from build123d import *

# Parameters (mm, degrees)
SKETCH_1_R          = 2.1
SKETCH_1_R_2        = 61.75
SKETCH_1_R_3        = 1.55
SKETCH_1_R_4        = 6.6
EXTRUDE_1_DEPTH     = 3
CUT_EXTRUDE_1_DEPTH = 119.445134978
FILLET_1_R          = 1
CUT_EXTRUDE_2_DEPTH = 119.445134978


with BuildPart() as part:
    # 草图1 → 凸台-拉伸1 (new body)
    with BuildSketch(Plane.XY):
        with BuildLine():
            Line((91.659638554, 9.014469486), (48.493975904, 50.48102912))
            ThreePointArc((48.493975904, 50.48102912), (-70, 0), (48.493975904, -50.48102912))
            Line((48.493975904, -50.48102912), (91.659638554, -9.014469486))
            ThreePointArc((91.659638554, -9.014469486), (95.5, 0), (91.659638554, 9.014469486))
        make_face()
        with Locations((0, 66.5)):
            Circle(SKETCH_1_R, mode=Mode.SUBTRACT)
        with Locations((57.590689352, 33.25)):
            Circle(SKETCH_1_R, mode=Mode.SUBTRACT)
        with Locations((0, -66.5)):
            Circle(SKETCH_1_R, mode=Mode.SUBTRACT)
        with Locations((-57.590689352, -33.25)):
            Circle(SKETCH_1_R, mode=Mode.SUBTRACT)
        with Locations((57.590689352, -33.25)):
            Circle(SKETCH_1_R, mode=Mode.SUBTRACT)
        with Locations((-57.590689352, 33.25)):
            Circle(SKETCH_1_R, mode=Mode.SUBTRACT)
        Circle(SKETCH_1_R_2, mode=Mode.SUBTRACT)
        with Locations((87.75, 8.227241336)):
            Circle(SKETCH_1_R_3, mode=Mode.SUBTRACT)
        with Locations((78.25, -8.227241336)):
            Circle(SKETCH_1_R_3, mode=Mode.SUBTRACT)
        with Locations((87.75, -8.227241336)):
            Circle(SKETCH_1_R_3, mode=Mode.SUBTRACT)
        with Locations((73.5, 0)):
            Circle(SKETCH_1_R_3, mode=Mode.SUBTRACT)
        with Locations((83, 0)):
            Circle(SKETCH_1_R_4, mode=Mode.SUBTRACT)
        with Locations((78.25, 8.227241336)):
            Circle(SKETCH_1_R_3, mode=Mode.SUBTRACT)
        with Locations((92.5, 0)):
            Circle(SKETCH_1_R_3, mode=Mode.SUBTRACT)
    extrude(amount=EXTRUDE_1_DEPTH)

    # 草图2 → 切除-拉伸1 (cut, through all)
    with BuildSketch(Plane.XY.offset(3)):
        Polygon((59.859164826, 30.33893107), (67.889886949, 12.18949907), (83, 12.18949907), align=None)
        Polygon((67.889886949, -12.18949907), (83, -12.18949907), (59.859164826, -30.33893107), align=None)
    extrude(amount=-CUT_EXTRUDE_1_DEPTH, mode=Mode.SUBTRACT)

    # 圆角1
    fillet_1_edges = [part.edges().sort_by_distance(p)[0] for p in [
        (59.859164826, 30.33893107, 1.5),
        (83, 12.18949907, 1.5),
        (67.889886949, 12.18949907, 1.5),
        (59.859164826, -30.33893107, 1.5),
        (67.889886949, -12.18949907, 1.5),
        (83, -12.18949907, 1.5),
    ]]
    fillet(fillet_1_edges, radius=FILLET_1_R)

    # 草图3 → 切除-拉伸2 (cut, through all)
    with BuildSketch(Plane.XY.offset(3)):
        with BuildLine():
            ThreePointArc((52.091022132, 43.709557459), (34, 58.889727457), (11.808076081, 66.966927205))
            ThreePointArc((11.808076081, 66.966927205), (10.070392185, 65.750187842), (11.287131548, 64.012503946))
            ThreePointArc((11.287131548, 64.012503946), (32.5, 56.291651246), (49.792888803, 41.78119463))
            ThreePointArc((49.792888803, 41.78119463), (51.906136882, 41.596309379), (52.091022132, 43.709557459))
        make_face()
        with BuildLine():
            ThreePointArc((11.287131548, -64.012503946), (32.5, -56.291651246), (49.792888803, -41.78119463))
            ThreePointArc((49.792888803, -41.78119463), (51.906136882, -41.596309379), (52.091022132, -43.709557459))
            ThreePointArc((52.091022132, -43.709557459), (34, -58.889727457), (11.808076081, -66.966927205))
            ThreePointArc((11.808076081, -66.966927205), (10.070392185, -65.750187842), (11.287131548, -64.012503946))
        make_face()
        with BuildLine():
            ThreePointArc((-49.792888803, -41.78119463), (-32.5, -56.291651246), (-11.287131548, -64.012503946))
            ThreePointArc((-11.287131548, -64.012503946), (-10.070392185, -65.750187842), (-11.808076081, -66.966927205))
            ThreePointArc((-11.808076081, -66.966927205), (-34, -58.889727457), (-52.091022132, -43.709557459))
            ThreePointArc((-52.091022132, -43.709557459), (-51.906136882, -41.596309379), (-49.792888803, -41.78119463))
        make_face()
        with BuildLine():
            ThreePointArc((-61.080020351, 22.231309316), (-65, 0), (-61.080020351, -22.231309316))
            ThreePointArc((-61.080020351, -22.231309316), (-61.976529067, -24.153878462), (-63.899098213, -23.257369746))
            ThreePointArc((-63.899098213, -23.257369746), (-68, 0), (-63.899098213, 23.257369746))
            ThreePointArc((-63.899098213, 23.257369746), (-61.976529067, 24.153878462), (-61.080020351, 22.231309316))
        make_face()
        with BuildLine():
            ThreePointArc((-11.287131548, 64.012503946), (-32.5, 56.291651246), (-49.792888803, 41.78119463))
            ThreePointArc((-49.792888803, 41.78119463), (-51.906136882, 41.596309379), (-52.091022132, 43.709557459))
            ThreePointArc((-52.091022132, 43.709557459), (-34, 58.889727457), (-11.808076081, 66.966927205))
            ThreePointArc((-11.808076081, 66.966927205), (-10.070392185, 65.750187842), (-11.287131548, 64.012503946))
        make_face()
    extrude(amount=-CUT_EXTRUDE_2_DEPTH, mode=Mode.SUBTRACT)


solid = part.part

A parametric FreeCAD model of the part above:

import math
import FreeCAD as App
import Part
import Sketcher
from FreeCAD import Vector
Q = App.Units.Quantity


def edges_at(feature, points):
    """Names of the edges that pass closest to the given points."""
    edges = feature.Shape.Edges
    near = lambda p: min(range(len(edges)), key=lambda i: edges[i].distToShape(Part.Vertex(*p))[0])
    return sorted({f"Edge{near(p) + 1}" for p in points})


def add_polygon(sketch, points):
    """Adds a closed chain of lines whose ends are joined by coincident constraints."""
    first, n = sketch.GeometryCount, len(points)
    for a, b in zip(points, points[1:] + points[:1]):
        sketch.addGeometry(Part.LineSegment(App.Vector(*a, 0), App.Vector(*b, 0)), False)
    for i in range(n):
        sketch.addConstraint(Sketcher.Constraint("Coincident", first + i, 2, first + (i + 1) % n, 1))

doc = App.newDocument("Part")
body = doc.addObject("PartDesign::Body", "Body")

# Sketch on XY plane
sketch1 = doc.addObject("Sketcher::SketchObject", "Sketch")
body.addObject(sketch1)
sketch1.AttachmentSupport = (doc.XY_Plane, [""])
sketch1.MapMode = "FlatFace"
sketch1.addGeometry(Part.LineSegment(Vector(91.659639, 9.014469, 0), Vector(48.493976, 50.481029, 0)), False)
sketch1.addGeometry(Part.ArcOfCircle(Part.Circle(Vector(0, 0, 0), Vector(0, 0, 1), 70), math.radians(46.150134), math.radians(313.849866)), False)
sketch1.addGeometry(Part.LineSegment(Vector(48.493976, -50.481029, 0), Vector(91.659639, -9.014469, 0)), False)
sketch1.addGeometry(Part.ArcOfCircle(Part.Circle(Vector(83, 0, 0), Vector(0, 0, 1), 12.5), math.radians(-46.150134), math.radians(46.150134)), False)
sketch1.addGeometry(Part.Circle(Vector(0, -66.5, 0), Vector(0, 0, 1), 2.1), False)
sketch1.addGeometry(Part.Circle(Vector(-57.590689, -33.25, 0), Vector(0, 0, 1), 2.1), False)
sketch1.addGeometry(Part.Circle(Vector(57.590689, -33.25, 0), Vector(0, 0, 1), 2.1), False)
sketch1.addGeometry(Part.Circle(Vector(78.25, -8.227241, 0), Vector(0, 0, 1), 1.55), False)
sketch1.addGeometry(Part.Circle(Vector(87.75, -8.227241, 0), Vector(0, 0, 1), 1.55), False)
sketch1.addGeometry(Part.Circle(Vector(-57.590689, 33.25, 0), Vector(0, 0, 1), 2.1), False)
sketch1.addGeometry(Part.Circle(Vector(0, 0, 0), Vector(0, 0, 1), 61.75), False)
sketch1.addGeometry(Part.Circle(Vector(0, 66.5, 0), Vector(0, 0, 1), 2.1), False)
sketch1.addGeometry(Part.Circle(Vector(73.5, 0, 0), Vector(0, 0, 1), 1.55), False)
sketch1.addGeometry(Part.Circle(Vector(83, 0, 0), Vector(0, 0, 1), 6.6), False)
sketch1.addGeometry(Part.Circle(Vector(78.25, 8.227241, 0), Vector(0, 0, 1), 1.55), False)
sketch1.addGeometry(Part.Circle(Vector(92.5, 0, 0), Vector(0, 0, 1), 1.55), False)
sketch1.addGeometry(Part.Circle(Vector(87.75, 8.227241, 0), Vector(0, 0, 1), 1.55), False)
sketch1.addGeometry(Part.Circle(Vector(57.590689, 33.25, 0), Vector(0, 0, 1), 2.1), False)
sketch1.addConstraint(Sketcher.Constraint("Tangent", 0, 2, 1, 1))
sketch1.addConstraint(Sketcher.Constraint("Tangent", 1, 2, 2, 1))
sketch1.addConstraint(Sketcher.Constraint("Tangent", 2, 2, 3, 1))
sketch1.addConstraint(Sketcher.Constraint("Tangent", 3, 2, 0, 1))
sketch1.addConstraint(Sketcher.Constraint("Coincident", 1, 3, -1, 1))
sketch1.addConstraint(Sketcher.Constraint("Coincident", 10, 3, -1, 1))
sketch1.addConstraint(Sketcher.Constraint("Coincident", 13, 3, 3, 3))
sketch1.addConstraint(Sketcher.Constraint("Equal", 4, 5))
sketch1.addConstraint(Sketcher.Constraint("Equal", 5, 6))
sketch1.addConstraint(Sketcher.Constraint("Equal", 7, 8))
sketch1.addConstraint(Sketcher.Constraint("Equal", 6, 9))
sketch1.addConstraint(Sketcher.Constraint("Equal", 9, 11))
sketch1.addConstraint(Sketcher.Constraint("Equal", 8, 12))
sketch1.addConstraint(Sketcher.Constraint("Equal", 12, 14))
sketch1.addConstraint(Sketcher.Constraint("Equal", 14, 15))
sketch1.addConstraint(Sketcher.Constraint("Equal", 15, 16))
sketch1.addConstraint(Sketcher.Constraint("Equal", 11, 17))
sketch1.addConstraint(Sketcher.Constraint("Symmetric", 6, 3, 9, 3, -1, 1))
sketch1.addConstraint(Sketcher.Constraint("Symmetric", 4, 3, 11, 3, -1, 1))
sketch1.addConstraint(Sketcher.Constraint("Symmetric", 5, 3, 17, 3, -1, 1))
sketch1.addConstraint(Sketcher.Constraint("Symmetric", 5, 3, 6, 3, -2))
sketch1.addConstraint(Sketcher.Constraint("Symmetric", 7, 3, 14, 3, -1))
sketch1.addConstraint(Sketcher.Constraint("Symmetric", 8, 3, 16, 3, -1))
sketch1.addConstraint(Sketcher.Constraint("PointOnObject", 3, 3, -1))
sketch1.addConstraint(Sketcher.Constraint("PointOnObject", 4, 3, -2))
sketch1.addConstraint(Sketcher.Constraint("PointOnObject", 12, 3, -1))
sketch1.addConstraint(Sketcher.Constraint("PointOnObject", 15, 3, -1))
sketch1.addConstraint(Sketcher.Constraint("Horizontal", 7, 3, 8, 3))
sketch1.addConstraint(Sketcher.Constraint("Radius", 1, Q("70 mm")))
sketch1.addConstraint(Sketcher.Constraint("Diameter", 4, Q("4.2 mm")))
sketch1.addConstraint(Sketcher.Constraint("Diameter", 7, Q("3.1 mm")))
sketch1.addConstraint(Sketcher.Constraint("Diameter", 10, Q("123.5 mm")))
sketch1.addConstraint(Sketcher.Constraint("Diameter", 13, Q("13.2 mm")))
sketch1.addConstraint(Sketcher.Constraint("Radius", 3, Q("12.5 mm")))
sketch1.addConstraint(Sketcher.Constraint("DistanceX", -1, 1, 3, 3, Q("83 mm")))
sketch1.addConstraint(Sketcher.Constraint("DistanceY", 4, 3, -1, 1, Q("66.5 mm")))
sketch1.addConstraint(Sketcher.Constraint("DistanceX", -1, 1, 12, 3, Q("73.5 mm")))
sketch1.addConstraint(Sketcher.Constraint("DistanceX", -1, 1, 15, 3, Q("92.5 mm")))
sketch1.addConstraint(Sketcher.Constraint("DistanceX", 7, 3, 8, 3, Q("9.5 mm")))
sketch1.addConstraint(Sketcher.Constraint("DistanceY", 5, 3, 9, 3, Q("66.5 mm")))
sketch1.addConstraint(Sketcher.Constraint("DistanceX", -1, 1, 7, 3, Q("78.25 mm")))
sketch1.addConstraint(Sketcher.Constraint("DistanceX", 5, 3, -1, 1, Q("57.590689 mm")))
sketch1.addConstraint(Sketcher.Constraint("DistanceY", 7, 3, -1, 1, Q("8.227241 mm")))
pad1 = doc.addObject("PartDesign::Pad", "Pad")
body.addObject(pad1)
pad1.Profile = sketch1
pad1.Length = 3

# Sketch on XY plane
sketch2 = doc.addObject("Sketcher::SketchObject", "Sketch001")
body.addObject(sketch2)
sketch2.AttachmentSupport = (doc.XY_Plane, [""])
sketch2.MapMode = "FlatFace"
sketch2.AttachmentOffset = App.Placement(Vector(0, 0, 3), App.Rotation())
add_polygon(sketch2, [(59.859165, 30.338931), (67.889887, 12.189499), (83, 12.189499)])  # lines 0-2
add_polygon(sketch2, [(83, -12.189499), (67.889887, -12.189499), (59.859165, -30.338931)])  # lines 3-5
sketch2.addConstraint(Sketcher.Constraint("Horizontal", 1))
sketch2.addConstraint(Sketcher.Constraint("Horizontal", 3))
sketch2.addConstraint(Sketcher.Constraint("Symmetric", 0, 2, 3, 2, -1))
sketch2.addConstraint(Sketcher.Constraint("Symmetric", 2, 2, 4, 2, -1))
sketch2.addConstraint(Sketcher.Constraint("Vertical", 1, 2, 5, 2))
sketch2.addConstraint(Sketcher.Constraint("DistanceX", -1, 1, 1, 2, Q("83 mm")))
sketch2.addConstraint(Sketcher.Constraint("DistanceY", 3, 2, 0, 2, Q("24.378998 mm")))
sketch2.addConstraint(Sketcher.Constraint("DistanceX", 1, 1, 1, 2, Q("15.110113 mm")))
sketch2.addConstraint(Sketcher.Constraint("DistanceY", -1, 1, 2, 2, Q("30.338931 mm")))
sketch2.addConstraint(Sketcher.Constraint("Distance", 0, Q("19.846773 mm")))
pocket1 = doc.addObject("PartDesign::Pocket", "Pocket")
body.addObject(pocket1)
pocket1.Profile = sketch2
pocket1.Type = "ThroughAll"
doc.recompute()

fillet = doc.addObject("PartDesign::Fillet", "Fillet")
body.addObject(fillet)
fillet.Base = (pocket1, edges_at(pocket1, [
    (59.859, 30.339, 1.5),
    (83, 12.189, 1.5),
    (67.89, 12.189, 1.5),
    (59.859, -30.339, 1.5),
    (67.89, -12.189, 1.5),
    (83, -12.189, 1.5),
]))
fillet.Radius = 1

# Sketch on XY plane
sketch3 = doc.addObject("Sketcher::SketchObject", "Sketch002")
body.addObject(sketch3)
sketch3.AttachmentSupport = (doc.XY_Plane, [""])
sketch3.MapMode = "FlatFace"
sketch3.AttachmentOffset = App.Placement(Vector(0, 0, 3), App.Rotation())
sketch3.addGeometry(Part.ArcOfCircle(Part.Circle(Vector(0, 0, 0), Vector(0, 0, 1), 68), math.radians(40), math.radians(80)), False)
sketch3.addGeometry(Part.ArcOfCircle(Part.Circle(Vector(11.547604, 65.489716, 0), Vector(0, 0, 1), 1.5), math.radians(80), math.radians(260)), False)
sketch3.addGeometry(Part.ArcOfCircle(Part.Circle(Vector(0, 0, 0), Vector(0, 0, 1), 65), math.radians(40), math.radians(80)), False)
sketch3.addGeometry(Part.ArcOfCircle(Part.Circle(Vector(50.941955, 42.745376, 0), Vector(0, 0, 1), 1.5), math.radians(-140), math.radians(40)), False)
sketch3.addGeometry(Part.ArcOfCircle(Part.Circle(Vector(0, 0, 0), Vector(0, 0, 1), 65), math.radians(-80), math.radians(-40)), False)
sketch3.addGeometry(Part.ArcOfCircle(Part.Circle(Vector(11.547604, -65.489716, 0), Vector(0, 0, 1), 1.5), math.radians(100), math.radians(280)), False)
sketch3.addGeometry(Part.ArcOfCircle(Part.Circle(Vector(0, 0, 0), Vector(0, 0, 1), 68), math.radians(-80), math.radians(-40)), False)
sketch3.addGeometry(Part.ArcOfCircle(Part.Circle(Vector(50.941955, -42.745376, 0), Vector(0, 0, 1), 1.5), math.radians(-40), math.radians(140)), False)
sketch3.addGeometry(Part.ArcOfCircle(Part.Circle(Vector(0, 0, 0), Vector(0, 0, 1), 65), math.radians(-140), math.radians(-100)), False)
sketch3.addGeometry(Part.ArcOfCircle(Part.Circle(Vector(-50.941955, -42.745376, 0), Vector(0, 0, 1), 1.5), math.radians(40), math.radians(220)), False)
sketch3.addGeometry(Part.ArcOfCircle(Part.Circle(Vector(0, 0, 0), Vector(0, 0, 1), 68), math.radians(-140), math.radians(-100)), False)
sketch3.addGeometry(Part.ArcOfCircle(Part.Circle(Vector(-11.547604, -65.489716, 0), Vector(0, 0, 1), 1.5), math.radians(-100), math.radians(80)), False)
sketch3.addGeometry(Part.ArcOfCircle(Part.Circle(Vector(0, 0, 0), Vector(0, 0, 1), 65), math.radians(160), math.radians(200)), False)
sketch3.addGeometry(Part.ArcOfCircle(Part.Circle(Vector(-62.489559, 22.74434, 0), Vector(0, 0, 1), 1.5), math.radians(-20), math.radians(160)), False)
sketch3.addGeometry(Part.ArcOfCircle(Part.Circle(Vector(0, 0, 0), Vector(0, 0, 1), 68), math.radians(160), math.radians(200)), False)
sketch3.addGeometry(Part.ArcOfCircle(Part.Circle(Vector(-62.489559, -22.74434, 0), Vector(0, 0, 1), 1.5), math.radians(-160), math.radians(20)), False)
sketch3.addGeometry(Part.ArcOfCircle(Part.Circle(Vector(0, 0, 0), Vector(0, 0, 1), 65), math.radians(100), math.radians(140)), False)
sketch3.addGeometry(Part.ArcOfCircle(Part.Circle(Vector(-11.547604, 65.489716, 0), Vector(0, 0, 1), 1.5), math.radians(-80), math.radians(100)), False)
sketch3.addGeometry(Part.ArcOfCircle(Part.Circle(Vector(0, 0, 0), Vector(0, 0, 1), 68), math.radians(100), math.radians(140)), False)
sketch3.addGeometry(Part.ArcOfCircle(Part.Circle(Vector(-50.941955, 42.745376, 0), Vector(0, 0, 1), 1.5), math.radians(140), math.radians(320)), False)
sketch3.addConstraint(Sketcher.Constraint("Tangent", 0, 2, 1, 1))
sketch3.addConstraint(Sketcher.Constraint("Tangent", 1, 2, 2, 2))
sketch3.addConstraint(Sketcher.Constraint("Tangent", 2, 1, 3, 1))
sketch3.addConstraint(Sketcher.Constraint("Tangent", 3, 2, 0, 1))
sketch3.addConstraint(Sketcher.Constraint("Tangent", 4, 1, 5, 1))
sketch3.addConstraint(Sketcher.Constraint("Tangent", 5, 2, 6, 1))
sketch3.addConstraint(Sketcher.Constraint("Tangent", 6, 2, 7, 1))
sketch3.addConstraint(Sketcher.Constraint("Tangent", 7, 2, 4, 2))
sketch3.addConstraint(Sketcher.Constraint("Tangent", 8, 1, 9, 1))
sketch3.addConstraint(Sketcher.Constraint("Tangent", 9, 2, 10, 1))
sketch3.addConstraint(Sketcher.Constraint("Tangent", 10, 2, 11, 1))
sketch3.addConstraint(Sketcher.Constraint("Tangent", 11, 2, 8, 2))
sketch3.addConstraint(Sketcher.Constraint("Tangent", 12, 1, 13, 1))
sketch3.addConstraint(Sketcher.Constraint("Tangent", 13, 2, 14, 1))
sketch3.addConstraint(Sketcher.Constraint("Tangent", 14, 2, 15, 1))
sketch3.addConstraint(Sketcher.Constraint("Tangent", 15, 2, 12, 2))
sketch3.addConstraint(Sketcher.Constraint("Tangent", 16, 1, 17, 1))
sketch3.addConstraint(Sketcher.Constraint("Tangent", 17, 2, 18, 1))
sketch3.addConstraint(Sketcher.Constraint("Tangent", 18, 2, 19, 1))
sketch3.addConstraint(Sketcher.Constraint("Tangent", 19, 2, 16, 2))
sketch3.addConstraint(Sketcher.Constraint("Coincident", 0, 3, -1, 1))
sketch3.addConstraint(Sketcher.Constraint("Coincident", 2, 3, -1, 1))
sketch3.addConstraint(Sketcher.Constraint("Coincident", 4, 3, -1, 1))
sketch3.addConstraint(Sketcher.Constraint("Coincident", 6, 3, -1, 1))
sketch3.addConstraint(Sketcher.Constraint("Coincident", 8, 3, -1, 1))
sketch3.addConstraint(Sketcher.Constraint("Coincident", 10, 3, -1, 1))
sketch3.addConstraint(Sketcher.Constraint("Coincident", 12, 3, -1, 1))
sketch3.addConstraint(Sketcher.Constraint("Coincident", 14, 3, -1, 1))
sketch3.addConstraint(Sketcher.Constraint("Coincident", 16, 3, -1, 1))
sketch3.addConstraint(Sketcher.Constraint("Coincident", 18, 3, -1, 1))
sketch3.addConstraint(Sketcher.Constraint("Equal", 2, 4))
sketch3.addConstraint(Sketcher.Constraint("Equal", 3, 5))
sketch3.addConstraint(Sketcher.Constraint("Equal", 4, 8))
sketch3.addConstraint(Sketcher.Constraint("Equal", 7, 9))
sketch3.addConstraint(Sketcher.Constraint("Equal", 8, 12))
sketch3.addConstraint(Sketcher.Constraint("Equal", 11, 13))
sketch3.addConstraint(Sketcher.Constraint("Equal", 12, 16))
sketch3.addConstraint(Sketcher.Constraint("Equal", 15, 17))
sketch3.addConstraint(Sketcher.Constraint("Horizontal", 7, 3, 9, 3))
sketch3.addConstraint(Sketcher.Constraint("Horizontal", 5, 3, 11, 3))
sketch3.addConstraint(Sketcher.Constraint("Horizontal", 1, 3, 17, 3))
sketch3.addConstraint(Sketcher.Constraint("Horizontal", 3, 3, 19, 3))
sketch3.addConstraint(Sketcher.Constraint("Vertical", 1, 3, 5, 3))
sketch3.addConstraint(Sketcher.Constraint("Vertical", 3, 3, 7, 3))
sketch3.addConstraint(Sketcher.Constraint("Vertical", 13, 3, 15, 3))
sketch3.addConstraint(Sketcher.Constraint("Radius", 0, Q("68 mm")))
sketch3.addConstraint(Sketcher.Constraint("Radius", 2, Q("65 mm")))
sketch3.addConstraint(Sketcher.Constraint("DistanceX", 15, 2, 9, 2, Q("8.988998 mm")))
sketch3.addConstraint(Sketcher.Constraint("DistanceX", 13, 2, -1, 1, Q("63.899098 mm")))
sketch3.addConstraint(Sketcher.Constraint("DistanceX", -1, 1, 1, 2, Q("11.287132 mm")))
pocket2 = doc.addObject("PartDesign::Pocket", "Pocket001")
body.addObject(pocket2)
pocket2.Profile = sketch3
pocket2.Type = "ThroughAll"

doc.recompute()
